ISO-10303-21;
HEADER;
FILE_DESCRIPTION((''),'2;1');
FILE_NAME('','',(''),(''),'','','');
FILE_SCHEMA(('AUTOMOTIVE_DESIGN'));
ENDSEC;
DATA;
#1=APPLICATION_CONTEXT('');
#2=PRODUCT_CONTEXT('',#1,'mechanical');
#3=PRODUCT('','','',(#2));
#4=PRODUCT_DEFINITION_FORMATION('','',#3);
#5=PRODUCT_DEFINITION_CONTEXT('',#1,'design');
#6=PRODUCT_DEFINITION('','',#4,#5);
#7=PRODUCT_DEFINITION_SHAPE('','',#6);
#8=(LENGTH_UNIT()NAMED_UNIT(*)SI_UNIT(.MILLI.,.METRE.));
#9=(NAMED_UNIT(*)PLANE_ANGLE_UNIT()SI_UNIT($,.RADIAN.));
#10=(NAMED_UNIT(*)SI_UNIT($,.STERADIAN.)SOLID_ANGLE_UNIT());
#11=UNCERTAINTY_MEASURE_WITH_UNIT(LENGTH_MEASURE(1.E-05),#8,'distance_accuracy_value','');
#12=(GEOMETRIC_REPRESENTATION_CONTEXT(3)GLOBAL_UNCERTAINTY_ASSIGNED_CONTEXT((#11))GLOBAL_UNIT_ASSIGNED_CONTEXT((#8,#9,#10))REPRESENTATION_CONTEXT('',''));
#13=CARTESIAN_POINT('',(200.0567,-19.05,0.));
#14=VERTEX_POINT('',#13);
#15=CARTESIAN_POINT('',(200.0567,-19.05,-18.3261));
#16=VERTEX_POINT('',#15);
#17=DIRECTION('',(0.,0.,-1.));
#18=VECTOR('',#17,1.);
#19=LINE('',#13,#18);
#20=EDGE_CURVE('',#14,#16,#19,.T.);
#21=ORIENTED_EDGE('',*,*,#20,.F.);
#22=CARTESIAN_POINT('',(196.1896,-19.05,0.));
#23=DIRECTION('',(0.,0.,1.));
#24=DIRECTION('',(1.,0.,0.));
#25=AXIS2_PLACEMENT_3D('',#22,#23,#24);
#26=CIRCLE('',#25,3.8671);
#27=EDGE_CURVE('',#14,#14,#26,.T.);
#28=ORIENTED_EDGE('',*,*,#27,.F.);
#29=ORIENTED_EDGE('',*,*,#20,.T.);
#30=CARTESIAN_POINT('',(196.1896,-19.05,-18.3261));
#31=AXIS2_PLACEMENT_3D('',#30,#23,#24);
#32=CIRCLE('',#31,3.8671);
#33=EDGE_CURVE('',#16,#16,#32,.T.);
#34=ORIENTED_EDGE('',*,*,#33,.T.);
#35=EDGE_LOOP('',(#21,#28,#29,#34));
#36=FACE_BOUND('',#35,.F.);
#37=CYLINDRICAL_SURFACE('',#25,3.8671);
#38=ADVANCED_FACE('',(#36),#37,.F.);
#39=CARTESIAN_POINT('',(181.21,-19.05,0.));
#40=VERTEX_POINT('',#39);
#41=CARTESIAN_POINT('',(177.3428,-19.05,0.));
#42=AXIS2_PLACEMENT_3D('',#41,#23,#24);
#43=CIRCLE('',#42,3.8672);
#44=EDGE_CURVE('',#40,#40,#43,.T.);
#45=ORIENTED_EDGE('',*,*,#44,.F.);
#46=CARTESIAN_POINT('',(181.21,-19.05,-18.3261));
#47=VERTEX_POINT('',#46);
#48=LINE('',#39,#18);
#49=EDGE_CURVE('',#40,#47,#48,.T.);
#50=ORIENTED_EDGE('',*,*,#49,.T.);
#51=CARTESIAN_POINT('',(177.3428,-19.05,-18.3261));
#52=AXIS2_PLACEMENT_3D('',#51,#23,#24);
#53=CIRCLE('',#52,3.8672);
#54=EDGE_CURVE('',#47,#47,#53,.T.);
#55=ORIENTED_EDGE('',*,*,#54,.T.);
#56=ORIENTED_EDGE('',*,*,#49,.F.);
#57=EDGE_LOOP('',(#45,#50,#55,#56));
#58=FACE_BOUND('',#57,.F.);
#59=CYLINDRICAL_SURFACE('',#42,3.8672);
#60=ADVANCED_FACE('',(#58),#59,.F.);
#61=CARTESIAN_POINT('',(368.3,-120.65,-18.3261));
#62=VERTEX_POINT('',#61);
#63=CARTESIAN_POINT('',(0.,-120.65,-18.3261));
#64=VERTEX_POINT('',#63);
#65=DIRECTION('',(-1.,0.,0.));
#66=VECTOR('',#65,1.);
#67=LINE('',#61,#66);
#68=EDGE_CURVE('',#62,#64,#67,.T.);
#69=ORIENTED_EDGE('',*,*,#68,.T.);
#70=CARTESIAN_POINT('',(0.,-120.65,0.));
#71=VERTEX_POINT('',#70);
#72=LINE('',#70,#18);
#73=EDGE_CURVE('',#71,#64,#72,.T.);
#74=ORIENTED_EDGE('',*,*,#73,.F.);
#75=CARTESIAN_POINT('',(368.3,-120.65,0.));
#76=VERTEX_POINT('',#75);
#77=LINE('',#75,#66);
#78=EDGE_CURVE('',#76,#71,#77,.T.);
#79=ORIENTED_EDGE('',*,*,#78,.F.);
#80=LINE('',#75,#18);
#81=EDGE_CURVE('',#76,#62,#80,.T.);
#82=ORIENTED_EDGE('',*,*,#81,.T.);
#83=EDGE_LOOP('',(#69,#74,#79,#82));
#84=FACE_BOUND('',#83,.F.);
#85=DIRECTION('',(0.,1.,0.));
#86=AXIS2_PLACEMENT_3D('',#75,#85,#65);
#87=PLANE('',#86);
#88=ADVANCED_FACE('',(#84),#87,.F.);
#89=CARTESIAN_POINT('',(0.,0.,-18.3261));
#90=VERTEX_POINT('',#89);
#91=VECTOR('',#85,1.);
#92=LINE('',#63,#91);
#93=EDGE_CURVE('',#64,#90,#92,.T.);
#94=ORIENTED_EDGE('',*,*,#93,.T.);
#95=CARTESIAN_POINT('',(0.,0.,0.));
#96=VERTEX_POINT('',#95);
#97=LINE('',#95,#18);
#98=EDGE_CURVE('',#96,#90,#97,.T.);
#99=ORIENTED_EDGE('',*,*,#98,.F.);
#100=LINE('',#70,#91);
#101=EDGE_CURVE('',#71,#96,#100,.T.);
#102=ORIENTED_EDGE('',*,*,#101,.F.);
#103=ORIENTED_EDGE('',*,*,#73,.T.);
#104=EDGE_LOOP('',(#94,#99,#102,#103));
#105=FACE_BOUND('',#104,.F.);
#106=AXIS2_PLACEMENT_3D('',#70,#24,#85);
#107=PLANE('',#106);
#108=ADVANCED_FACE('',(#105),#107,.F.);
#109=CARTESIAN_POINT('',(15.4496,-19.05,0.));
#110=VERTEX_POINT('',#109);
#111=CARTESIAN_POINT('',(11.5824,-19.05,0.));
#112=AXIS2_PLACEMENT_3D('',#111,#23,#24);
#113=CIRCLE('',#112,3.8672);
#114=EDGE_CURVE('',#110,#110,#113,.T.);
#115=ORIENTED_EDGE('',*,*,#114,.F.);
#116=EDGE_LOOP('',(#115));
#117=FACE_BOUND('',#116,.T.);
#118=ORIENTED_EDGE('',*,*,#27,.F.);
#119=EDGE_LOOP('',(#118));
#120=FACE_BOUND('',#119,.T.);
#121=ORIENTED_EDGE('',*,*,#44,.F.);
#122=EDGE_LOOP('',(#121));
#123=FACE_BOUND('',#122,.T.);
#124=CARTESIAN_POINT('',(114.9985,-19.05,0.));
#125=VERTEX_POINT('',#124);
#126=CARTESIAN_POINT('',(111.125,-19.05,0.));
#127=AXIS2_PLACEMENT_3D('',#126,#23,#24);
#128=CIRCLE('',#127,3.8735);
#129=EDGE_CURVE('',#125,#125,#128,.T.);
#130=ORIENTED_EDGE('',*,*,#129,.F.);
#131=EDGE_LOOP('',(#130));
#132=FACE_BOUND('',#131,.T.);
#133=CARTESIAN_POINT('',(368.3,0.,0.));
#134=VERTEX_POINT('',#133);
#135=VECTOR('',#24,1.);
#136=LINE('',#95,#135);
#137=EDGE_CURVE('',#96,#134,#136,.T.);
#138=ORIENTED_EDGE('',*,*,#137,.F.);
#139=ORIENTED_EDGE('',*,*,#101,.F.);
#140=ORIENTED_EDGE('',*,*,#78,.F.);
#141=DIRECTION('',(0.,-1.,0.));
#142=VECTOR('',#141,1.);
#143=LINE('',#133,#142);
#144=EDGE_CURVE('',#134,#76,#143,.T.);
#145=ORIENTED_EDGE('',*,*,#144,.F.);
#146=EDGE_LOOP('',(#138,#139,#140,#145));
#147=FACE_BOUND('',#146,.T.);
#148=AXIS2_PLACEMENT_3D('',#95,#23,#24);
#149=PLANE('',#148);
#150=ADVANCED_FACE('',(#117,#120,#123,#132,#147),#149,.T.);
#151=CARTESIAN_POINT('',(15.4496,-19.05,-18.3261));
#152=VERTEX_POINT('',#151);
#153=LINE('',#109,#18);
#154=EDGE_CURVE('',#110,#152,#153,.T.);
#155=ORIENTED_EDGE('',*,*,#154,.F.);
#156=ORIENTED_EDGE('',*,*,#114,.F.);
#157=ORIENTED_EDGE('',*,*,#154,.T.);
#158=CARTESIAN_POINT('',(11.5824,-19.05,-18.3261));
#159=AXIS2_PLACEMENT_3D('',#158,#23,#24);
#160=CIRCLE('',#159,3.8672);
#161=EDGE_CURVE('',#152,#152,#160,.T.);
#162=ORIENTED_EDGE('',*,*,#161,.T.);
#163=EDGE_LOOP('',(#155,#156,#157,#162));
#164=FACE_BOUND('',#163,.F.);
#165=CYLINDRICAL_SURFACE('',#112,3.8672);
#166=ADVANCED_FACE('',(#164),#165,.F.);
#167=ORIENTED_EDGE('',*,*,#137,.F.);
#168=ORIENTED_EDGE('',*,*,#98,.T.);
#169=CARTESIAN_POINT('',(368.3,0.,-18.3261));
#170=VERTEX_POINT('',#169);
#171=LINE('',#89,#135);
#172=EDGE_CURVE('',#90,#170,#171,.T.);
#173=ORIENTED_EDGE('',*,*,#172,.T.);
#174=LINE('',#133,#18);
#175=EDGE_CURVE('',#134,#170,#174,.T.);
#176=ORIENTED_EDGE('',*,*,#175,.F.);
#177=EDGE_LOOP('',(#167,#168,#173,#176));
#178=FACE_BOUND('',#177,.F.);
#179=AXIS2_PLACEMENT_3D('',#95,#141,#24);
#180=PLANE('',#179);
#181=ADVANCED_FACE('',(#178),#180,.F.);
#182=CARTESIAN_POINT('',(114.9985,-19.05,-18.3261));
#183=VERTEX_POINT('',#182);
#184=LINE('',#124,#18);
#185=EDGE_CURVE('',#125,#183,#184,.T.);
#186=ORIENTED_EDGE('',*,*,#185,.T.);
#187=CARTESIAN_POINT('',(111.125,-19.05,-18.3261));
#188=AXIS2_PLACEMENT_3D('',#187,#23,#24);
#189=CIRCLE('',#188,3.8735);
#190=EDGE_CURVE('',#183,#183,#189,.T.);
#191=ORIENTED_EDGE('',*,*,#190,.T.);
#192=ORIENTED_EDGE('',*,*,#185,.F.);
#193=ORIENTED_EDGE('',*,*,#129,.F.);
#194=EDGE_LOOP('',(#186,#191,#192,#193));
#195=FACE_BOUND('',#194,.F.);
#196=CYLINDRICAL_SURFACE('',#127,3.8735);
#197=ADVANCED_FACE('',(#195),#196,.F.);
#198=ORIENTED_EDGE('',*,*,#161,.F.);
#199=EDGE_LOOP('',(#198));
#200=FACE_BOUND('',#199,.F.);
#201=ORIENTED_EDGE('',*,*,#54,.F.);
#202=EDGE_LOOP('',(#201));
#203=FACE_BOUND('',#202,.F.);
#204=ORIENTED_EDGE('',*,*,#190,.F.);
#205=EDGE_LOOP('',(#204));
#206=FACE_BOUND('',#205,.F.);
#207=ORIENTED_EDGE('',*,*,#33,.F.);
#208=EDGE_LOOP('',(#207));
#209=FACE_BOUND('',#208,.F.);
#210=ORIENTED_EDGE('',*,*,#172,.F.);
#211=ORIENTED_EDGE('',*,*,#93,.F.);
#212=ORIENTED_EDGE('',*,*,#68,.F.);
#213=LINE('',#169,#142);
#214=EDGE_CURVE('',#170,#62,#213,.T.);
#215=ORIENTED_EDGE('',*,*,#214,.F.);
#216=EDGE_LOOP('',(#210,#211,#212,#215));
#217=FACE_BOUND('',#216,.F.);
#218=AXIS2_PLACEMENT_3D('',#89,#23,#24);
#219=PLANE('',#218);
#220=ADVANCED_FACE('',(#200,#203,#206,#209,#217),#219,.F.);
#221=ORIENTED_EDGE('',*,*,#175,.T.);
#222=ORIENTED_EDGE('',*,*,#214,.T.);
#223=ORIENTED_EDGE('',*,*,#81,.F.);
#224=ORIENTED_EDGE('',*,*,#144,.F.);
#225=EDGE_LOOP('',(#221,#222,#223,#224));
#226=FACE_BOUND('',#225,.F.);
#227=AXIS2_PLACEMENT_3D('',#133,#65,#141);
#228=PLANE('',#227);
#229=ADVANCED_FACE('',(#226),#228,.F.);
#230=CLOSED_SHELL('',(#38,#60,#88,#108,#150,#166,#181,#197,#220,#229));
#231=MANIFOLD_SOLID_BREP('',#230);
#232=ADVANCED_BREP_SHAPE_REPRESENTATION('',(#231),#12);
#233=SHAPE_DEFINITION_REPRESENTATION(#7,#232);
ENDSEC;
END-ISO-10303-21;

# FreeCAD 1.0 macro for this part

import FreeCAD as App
import Part
import Sketcher
from FreeCAD import Vector
Q = App.Units.Quantity


def add_polygon(sketch, points):
    """Adds a closed chain of lines whose ends are joined by coincident constraints."""
    first, n = sketch.GeometryCount, len(points)
    for a, b in zip(points, points[1:] + points[:1]):
        sketch.addGeometry(Part.LineSegment(App.Vector(*a, 0), App.Vector(*b, 0)), False)
    for i in range(n):
        sketch.addConstraint(Sketcher.Constraint("Coincident", first + i, 2, first + (i + 1) % n, 1))

doc = App.newDocument("Part")
body = doc.addObject("PartDesign::Body", "Body")

# Sketch on XY plane
sketch1 = body.newObject("Sketcher::SketchObject", "Sketch")
sketch1.AttachmentSupport = (doc.getObject("XY_Plane"), [""])
sketch1.MapMode = "FlatFace"
add_polygon(sketch1, [(368.3, 0), (0, 0), (0, -120.7), (368.3, -120.7)])  # lines 0-3
sketch1.addGeometry(Part.Circle(Vector(11.6, -19.1, 0), Vector(0, 0, 1), 3.9), False)  # 4
sketch1.addGeometry(Part.Circle(Vector(111.1, -19.1, 0), Vector(0, 0, 1), 3.9), False)  # 5
sketch1.addGeometry(Part.Circle(Vector(177.3, -19.1, 0), Vector(0, 0, 1), 3.9), False)  # 6
sketch1.addGeometry(Part.Circle(Vector(196.2, -19.1, 0), Vector(0, 0, 1), 3.9), False)  # 7
sketch1.addConstraint([
    Sketcher.Constraint("Horizontal", 0),
    Sketcher.Constraint("Vertical", 1),
    Sketcher.Constraint("Horizontal", 2),
    Sketcher.Constraint("Vertical", 3),
    Sketcher.Constraint("Coincident", 0, 2, -1, 1),
    Sketcher.Constraint("Equal", 4, 6),
    Sketcher.Constraint("Equal", 6, 7),
    Sketcher.Constraint("Horizontal", 4, 3, 5, 3),
    Sketcher.Constraint("Horizontal", 5, 3, 6, 3),
    Sketcher.Constraint("Horizontal", 6, 3, 7, 3),
    Sketcher.Constraint("Diameter", 5, Q("0.305 in")),
    Sketcher.Constraint("DistanceX", 0, 2, 0, 1, Q("14.5 in")),
    Sketcher.Constraint("DistanceY", 1, 2, 4, 3, Q("4 in")),
    Sketcher.Constraint("Diameter", 4, Q("0.3045 in")),
    Sketcher.Constraint("DistanceY", 1, 2, 1, 1, Q("4.75 in")),
    Sketcher.Constraint("DistanceX", -1, 1, 4, 3, Q("0.456 in")),
    Sketcher.Constraint("DistanceX", 4, 3, 5, 3, Q("3.919 in")),
    Sketcher.Constraint("DistanceX", 5, 3, 6, 3, Q("2.607 in")),
    Sketcher.Constraint("DistanceX", 6, 3, 7, 3, Q("0.742 in")),
])
pad1 = body.newObject("PartDesign::Pad", "Pad")
pad1.Profile = sketch1
pad1.Length = Q("0.7215 in")
pad1.Reversed = True

doc.recompute()
